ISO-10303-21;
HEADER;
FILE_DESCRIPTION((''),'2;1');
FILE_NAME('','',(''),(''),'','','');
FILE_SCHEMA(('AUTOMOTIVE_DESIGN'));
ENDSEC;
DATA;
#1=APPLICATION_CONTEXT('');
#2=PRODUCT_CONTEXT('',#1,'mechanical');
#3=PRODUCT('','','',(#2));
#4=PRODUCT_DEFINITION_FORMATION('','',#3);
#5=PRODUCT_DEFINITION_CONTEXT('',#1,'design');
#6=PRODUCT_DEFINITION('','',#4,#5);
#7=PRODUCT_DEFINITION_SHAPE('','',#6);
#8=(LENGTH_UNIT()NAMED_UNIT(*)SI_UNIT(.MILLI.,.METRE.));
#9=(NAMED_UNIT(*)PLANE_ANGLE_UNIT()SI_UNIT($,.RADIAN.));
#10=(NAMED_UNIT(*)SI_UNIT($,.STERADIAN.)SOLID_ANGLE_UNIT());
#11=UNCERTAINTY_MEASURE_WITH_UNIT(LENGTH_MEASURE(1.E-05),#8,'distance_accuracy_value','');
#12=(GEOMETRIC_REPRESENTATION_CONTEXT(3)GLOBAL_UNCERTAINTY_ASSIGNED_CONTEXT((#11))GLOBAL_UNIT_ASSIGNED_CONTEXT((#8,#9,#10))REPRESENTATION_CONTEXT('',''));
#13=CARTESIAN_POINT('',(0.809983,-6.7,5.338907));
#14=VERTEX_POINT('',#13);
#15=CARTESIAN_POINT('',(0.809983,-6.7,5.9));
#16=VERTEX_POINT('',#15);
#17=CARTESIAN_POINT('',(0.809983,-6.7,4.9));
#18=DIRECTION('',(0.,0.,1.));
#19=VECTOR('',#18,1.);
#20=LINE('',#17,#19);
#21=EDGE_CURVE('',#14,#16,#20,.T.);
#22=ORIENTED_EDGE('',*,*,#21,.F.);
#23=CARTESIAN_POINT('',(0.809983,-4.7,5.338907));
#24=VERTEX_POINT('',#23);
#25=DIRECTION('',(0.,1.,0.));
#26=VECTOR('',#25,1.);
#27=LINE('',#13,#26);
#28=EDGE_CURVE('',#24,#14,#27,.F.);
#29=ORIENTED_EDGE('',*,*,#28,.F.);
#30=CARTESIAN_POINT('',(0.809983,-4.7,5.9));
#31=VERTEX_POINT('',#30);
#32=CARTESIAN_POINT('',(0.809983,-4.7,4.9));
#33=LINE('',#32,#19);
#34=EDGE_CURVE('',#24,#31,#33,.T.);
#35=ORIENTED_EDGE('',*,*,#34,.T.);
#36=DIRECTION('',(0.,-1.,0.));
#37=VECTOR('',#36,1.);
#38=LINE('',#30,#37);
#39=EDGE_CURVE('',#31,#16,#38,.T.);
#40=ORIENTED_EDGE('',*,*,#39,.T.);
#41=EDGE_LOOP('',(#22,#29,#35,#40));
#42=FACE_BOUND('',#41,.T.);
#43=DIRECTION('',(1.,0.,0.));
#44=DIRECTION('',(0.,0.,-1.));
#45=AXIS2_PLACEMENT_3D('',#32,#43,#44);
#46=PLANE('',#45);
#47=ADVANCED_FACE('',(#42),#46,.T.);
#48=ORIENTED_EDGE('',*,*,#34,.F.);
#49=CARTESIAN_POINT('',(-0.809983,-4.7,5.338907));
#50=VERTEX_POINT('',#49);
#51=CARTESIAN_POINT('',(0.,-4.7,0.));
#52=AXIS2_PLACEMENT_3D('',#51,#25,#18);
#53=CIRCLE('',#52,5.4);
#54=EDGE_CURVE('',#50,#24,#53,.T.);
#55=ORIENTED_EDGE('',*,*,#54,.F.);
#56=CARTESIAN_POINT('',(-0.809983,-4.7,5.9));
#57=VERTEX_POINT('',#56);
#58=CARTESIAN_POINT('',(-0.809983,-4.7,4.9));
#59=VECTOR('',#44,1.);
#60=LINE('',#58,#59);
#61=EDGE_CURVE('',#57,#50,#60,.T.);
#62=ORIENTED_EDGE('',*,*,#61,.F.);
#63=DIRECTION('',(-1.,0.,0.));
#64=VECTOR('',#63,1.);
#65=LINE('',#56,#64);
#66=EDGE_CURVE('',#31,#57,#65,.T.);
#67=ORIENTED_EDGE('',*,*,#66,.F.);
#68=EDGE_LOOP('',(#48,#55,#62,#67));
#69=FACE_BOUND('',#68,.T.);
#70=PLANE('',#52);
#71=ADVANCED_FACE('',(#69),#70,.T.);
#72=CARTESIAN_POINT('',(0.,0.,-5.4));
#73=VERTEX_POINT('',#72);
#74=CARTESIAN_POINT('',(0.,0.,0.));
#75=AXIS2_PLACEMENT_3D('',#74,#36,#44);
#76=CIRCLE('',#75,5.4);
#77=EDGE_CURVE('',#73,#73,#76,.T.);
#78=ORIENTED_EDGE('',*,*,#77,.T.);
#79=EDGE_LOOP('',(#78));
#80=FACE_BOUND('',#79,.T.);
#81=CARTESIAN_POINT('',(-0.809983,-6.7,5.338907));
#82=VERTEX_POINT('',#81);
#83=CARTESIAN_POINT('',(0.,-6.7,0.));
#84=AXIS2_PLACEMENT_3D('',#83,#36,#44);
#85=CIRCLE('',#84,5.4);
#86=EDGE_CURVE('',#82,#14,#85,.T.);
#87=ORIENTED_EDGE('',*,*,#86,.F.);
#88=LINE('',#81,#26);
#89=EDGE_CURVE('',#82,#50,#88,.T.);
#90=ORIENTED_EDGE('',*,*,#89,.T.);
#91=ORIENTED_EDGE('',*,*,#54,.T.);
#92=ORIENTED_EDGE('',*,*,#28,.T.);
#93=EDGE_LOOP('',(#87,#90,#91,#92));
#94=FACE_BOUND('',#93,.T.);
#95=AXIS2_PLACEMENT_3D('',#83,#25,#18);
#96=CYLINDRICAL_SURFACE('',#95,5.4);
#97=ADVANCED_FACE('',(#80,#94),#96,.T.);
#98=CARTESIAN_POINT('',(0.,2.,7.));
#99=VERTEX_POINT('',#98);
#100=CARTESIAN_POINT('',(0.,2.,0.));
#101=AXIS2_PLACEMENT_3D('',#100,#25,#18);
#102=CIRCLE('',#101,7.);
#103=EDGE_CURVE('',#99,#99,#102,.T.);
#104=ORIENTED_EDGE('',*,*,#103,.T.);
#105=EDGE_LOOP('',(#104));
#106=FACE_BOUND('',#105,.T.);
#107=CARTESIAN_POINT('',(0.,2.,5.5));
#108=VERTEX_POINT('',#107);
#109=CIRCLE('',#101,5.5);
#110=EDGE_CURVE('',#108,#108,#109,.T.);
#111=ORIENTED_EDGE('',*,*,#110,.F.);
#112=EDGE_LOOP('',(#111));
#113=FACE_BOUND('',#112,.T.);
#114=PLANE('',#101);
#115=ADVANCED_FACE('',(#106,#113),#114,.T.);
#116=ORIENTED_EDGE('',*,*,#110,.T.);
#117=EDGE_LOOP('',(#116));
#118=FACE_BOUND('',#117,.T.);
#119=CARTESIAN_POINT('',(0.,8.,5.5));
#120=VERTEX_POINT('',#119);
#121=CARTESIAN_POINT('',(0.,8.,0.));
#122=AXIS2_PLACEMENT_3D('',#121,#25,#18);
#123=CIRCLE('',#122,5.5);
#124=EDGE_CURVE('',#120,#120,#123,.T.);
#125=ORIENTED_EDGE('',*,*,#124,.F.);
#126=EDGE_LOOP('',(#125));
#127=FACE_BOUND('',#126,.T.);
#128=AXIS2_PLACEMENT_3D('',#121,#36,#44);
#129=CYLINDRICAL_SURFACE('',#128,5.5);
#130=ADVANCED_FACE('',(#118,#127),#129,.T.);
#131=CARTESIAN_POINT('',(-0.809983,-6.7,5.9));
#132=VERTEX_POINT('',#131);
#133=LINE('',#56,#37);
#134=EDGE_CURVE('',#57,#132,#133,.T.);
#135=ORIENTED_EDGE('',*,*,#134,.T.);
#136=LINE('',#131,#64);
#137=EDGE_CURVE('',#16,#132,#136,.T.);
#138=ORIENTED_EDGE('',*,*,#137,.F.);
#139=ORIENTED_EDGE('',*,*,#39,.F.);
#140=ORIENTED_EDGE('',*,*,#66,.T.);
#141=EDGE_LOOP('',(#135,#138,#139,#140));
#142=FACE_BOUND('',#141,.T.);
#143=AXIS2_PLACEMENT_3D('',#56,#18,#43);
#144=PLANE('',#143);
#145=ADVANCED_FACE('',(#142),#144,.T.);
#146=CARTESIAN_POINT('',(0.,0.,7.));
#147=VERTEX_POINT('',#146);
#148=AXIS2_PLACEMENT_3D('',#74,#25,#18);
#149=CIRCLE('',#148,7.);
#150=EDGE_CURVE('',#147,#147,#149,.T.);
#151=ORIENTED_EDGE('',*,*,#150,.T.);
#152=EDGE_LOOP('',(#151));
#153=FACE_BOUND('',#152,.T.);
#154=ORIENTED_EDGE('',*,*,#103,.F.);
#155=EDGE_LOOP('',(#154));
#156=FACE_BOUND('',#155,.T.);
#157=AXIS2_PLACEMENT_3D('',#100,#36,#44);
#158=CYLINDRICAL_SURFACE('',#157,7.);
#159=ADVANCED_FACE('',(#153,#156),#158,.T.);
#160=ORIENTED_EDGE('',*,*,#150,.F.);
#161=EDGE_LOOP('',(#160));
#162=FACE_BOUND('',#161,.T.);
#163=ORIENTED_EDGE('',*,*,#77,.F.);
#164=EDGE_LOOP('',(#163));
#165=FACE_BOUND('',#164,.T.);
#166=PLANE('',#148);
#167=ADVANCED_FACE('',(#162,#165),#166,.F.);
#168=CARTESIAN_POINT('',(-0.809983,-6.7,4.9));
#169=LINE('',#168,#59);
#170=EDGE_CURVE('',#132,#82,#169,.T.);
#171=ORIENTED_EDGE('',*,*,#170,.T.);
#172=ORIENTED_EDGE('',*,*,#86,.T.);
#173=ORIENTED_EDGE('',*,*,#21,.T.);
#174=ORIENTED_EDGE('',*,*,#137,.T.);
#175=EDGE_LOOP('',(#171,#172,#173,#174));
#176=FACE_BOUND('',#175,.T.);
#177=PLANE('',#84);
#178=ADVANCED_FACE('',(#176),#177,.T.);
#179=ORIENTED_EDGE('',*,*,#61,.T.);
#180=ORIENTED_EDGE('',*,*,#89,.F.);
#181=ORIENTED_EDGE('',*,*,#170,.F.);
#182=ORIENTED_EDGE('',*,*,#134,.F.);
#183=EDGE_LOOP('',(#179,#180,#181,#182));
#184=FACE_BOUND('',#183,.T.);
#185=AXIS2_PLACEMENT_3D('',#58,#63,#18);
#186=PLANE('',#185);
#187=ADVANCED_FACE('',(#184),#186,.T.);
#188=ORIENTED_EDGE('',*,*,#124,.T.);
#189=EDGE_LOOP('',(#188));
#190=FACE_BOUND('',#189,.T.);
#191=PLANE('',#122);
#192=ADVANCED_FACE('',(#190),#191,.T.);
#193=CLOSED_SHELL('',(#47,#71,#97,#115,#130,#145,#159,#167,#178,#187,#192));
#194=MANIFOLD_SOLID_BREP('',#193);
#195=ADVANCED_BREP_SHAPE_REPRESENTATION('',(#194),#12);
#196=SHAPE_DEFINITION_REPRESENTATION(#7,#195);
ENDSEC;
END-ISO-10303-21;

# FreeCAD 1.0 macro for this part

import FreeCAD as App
import Part
import Sketcher


def add_polygon(sketch, points):
    """Adds a closed chain of lines whose ends are joined by coincident constraints."""
    first, n = sketch.GeometryCount, len(points)
    for a, b in zip(points, points[1:] + points[:1]):
        sketch.addGeometry(Part.LineSegment(App.Vector(*a, 0), App.Vector(*b, 0)), False)
    for i in range(n):
        sketch.addConstraint(Sketcher.Constraint("Coincident", first + i, 2, first + (i + 1) % n, 1))

doc = App.newDocument("Part")
body = doc.addObject("PartDesign::Body", "Body")

sketch1 = body.newObject("Sketcher::SketchObject", "Sketch")
sketch1.AttachmentSupport = (doc.getObject("XZ_Plane"), [""])
sketch1.MapMode = "FlatFace"
sketch1.addGeometry(Part.Circle(App.Vector(0, 0, 0), App.Vector(0, 0, 1), 7), False)
sketch1.addConstraint(Sketcher.Constraint("Coincident", 0, 3, -1, 1))
sketch1.addConstraint(Sketcher.Constraint("Diameter", 0, 14.0))
pad1 = body.newObject("PartDesign::Pad", "Pad")
pad1.Profile = sketch1
pad1.Length = 2
pad1.Reversed = True

sketch2 = body.newObject("Sketcher::SketchObject", "Sketch001")
sketch2.AttachmentSupport = (doc.getObject("XZ_Plane"), [""])
sketch2.MapMode = "FlatFace"
sketch2.AttachmentOffset = App.Placement(App.Vector(0, 0, -2), App.Rotation())
sketch2.addGeometry(Part.Circle(App.Vector(0, 0, 0), App.Vector(0, 0, 1), 5.5), False)
sketch2.addConstraint(Sketcher.Constraint("Coincident", 0, 3, -1, 1))
sketch2.addConstraint(Sketcher.Constraint("Diameter", 0, 11.0))
pad2 = body.newObject("PartDesign::Pad", "Pad001")
pad2.Profile = sketch2
pad2.Length = 6
pad2.Reversed = True

sketch3 = body.newObject("Sketcher::SketchObject", "Sketch002")
sketch3.AttachmentSupport = (doc.getObject("XZ_Plane"), [""])
sketch3.MapMode = "FlatFace"
sketch3.addGeometry(Part.Circle(App.Vector(0, 0, 0), App.Vector(0, 0, 1), 5.4), False)
sketch3.addConstraint(Sketcher.Constraint("Coincident", 0, 3, -1, 1))
sketch3.addConstraint(Sketcher.Constraint("Diameter", 0, 10.8))
pad3 = body.newObject("PartDesign::Pad", "Pad002")
pad3.Profile = sketch3
pad3.Length = 6.7

sketch4 = body.newObject("Sketcher::SketchObject", "Sketch003")
sketch4.AttachmentSupport = (doc.getObject("XZ_Plane"), [""])
sketch4.MapMode = "FlatFace"
sketch4.AttachmentOffset = App.Placement(App.Vector(0, 0, 6.7), App.Rotation())
add_polygon(sketch4, [(-0.809983, 5.9), (-0.809983, 4.9), (0.809983, 4.9), (0.809983, 5.9)])
sketch4.addConstraint(Sketcher.Constraint("Vertical", 0))
sketch4.addConstraint(Sketcher.Constraint("Horizontal", 1))
sketch4.addConstraint(Sketcher.Constraint("Vertical", 2))
sketch4.addConstraint(Sketcher.Constraint("Horizontal", 3))
sketch4.addConstraint(Sketcher.Constraint("DistanceY", 0, 2, 0, 1, 1.0))
sketch4.addConstraint(Sketcher.Constraint("DistanceY", -1, 1, 0, 2, 4.9))
sketch4.addConstraint(Sketcher.Constraint("DistanceX", 1, 1, 1, 2, 1.619966))
sketch4.addConstraint(Sketcher.Constraint("DistanceX", 0, 2, -1, 1, 0.809983))
pad4 = body.newObject("PartDesign::Pad", "Pad003")
pad4.Profile = sketch4
pad4.Length = 2
pad4.Reversed = True

doc.recompute()
